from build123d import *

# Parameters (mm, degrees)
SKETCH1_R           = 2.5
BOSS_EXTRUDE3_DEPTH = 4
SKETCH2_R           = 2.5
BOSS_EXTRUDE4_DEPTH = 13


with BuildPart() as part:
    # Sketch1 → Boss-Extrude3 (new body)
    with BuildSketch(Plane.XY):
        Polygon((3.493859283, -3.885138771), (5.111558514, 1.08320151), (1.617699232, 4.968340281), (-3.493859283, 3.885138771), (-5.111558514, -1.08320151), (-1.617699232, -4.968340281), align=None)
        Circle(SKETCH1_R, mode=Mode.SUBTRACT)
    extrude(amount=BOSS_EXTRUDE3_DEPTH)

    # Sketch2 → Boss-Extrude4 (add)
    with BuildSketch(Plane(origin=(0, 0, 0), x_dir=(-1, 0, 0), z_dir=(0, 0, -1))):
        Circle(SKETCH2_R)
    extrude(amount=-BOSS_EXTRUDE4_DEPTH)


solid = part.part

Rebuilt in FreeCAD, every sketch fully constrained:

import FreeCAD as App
import Part
import Sketcher

V = App.Vector
Q = App.Units.Quantity


def add_polygon(sketch, points):
    """Adds a closed chain of lines whose ends are joined by coincident constraints."""
    first, n = sketch.GeometryCount, len(points)
    for a, b in zip(points, points[1:] + points[:1]):
        sketch.addGeometry(Part.LineSegment(App.Vector(*a, 0), App.Vector(*b, 0)), False)
    for i in range(n):
        sketch.addConstraint(Sketcher.Constraint("Coincident", first + i, 2, first + (i + 1) % n, 1))

doc = App.newDocument("Part")
body = doc.addObject("PartDesign::Body", "Body")

# Sketch on XY plane
sketch1 = body.newObject("Sketcher::SketchObject", "Sketch")
sketch1.AttachmentSupport = (doc.getObject("XY_Plane"), [""])
sketch1.MapMode = "FlatFace"
add_polygon(sketch1, [(3.493859, -3.885139), (5.111559, 1.083202), (1.617699, 4.96834), (-3.493859, 3.885139), (-5.111559, -1.083202), (-1.617699, -4.96834)])  # lines 0-5
sketch1.addGeometry(Part.Circle(V(0, 0, 0), V(0, 0, 1), 2.5), False)  # 6
sketch1.addConstraint([
    Sketcher.Constraint("Coincident", 6, 3, -1, 1),
    Sketcher.Constraint("Symmetric", 0, 2, 3, 2, -1, 1),
    Sketcher.Constraint("Symmetric", 1, 2, 4, 2, -1, 1),
    Sketcher.Constraint("Symmetric", 2, 2, 5, 2, -1, 1),
    Sketcher.Constraint("Equal", 0, 1),
    Sketcher.Constraint("Equal", 1, 2),
    Sketcher.Constraint("Diameter", 6, Q("5 mm")),
    Sketcher.Constraint("DistanceY", -1, 1, 0, 2, Q("1.083202 mm")),
    Sketcher.Constraint("DistanceX", -1, 1, 1, 2, Q("1.617699 mm")),
    Sketcher.Constraint("DistanceY", 2, 2, 1, 2, Q("1.083202 mm")),
    Sketcher.Constraint("DistanceX", 3, 2, 2, 2, Q("1.617699 mm")),
])
pad1 = body.newObject("PartDesign::Pad", "Pad")
pad1.Profile = sketch1
pad1.Length = 4

# Sketch on XY plane
sketch2 = body.newObject("Sketcher::SketchObject", "Sketch001")
sketch2.AttachmentSupport = (doc.getObject("XY_Plane"), [""])
sketch2.MapMode = "FlatFace"
sketch2.addGeometry(Part.Circle(V(0, 0, 0), V(0, 0, 1), 2.5), False)
sketch2.addConstraint([
    Sketcher.Constraint("Coincident", 0, 3, -1, 1),
    Sketcher.Constraint("Diameter", 0, Q("5 mm")),
])
pad2 = body.newObject("PartDesign::Pad", "Pad001")
pad2.Profile = sketch2
pad2.Length = 13

doc.recompute()
